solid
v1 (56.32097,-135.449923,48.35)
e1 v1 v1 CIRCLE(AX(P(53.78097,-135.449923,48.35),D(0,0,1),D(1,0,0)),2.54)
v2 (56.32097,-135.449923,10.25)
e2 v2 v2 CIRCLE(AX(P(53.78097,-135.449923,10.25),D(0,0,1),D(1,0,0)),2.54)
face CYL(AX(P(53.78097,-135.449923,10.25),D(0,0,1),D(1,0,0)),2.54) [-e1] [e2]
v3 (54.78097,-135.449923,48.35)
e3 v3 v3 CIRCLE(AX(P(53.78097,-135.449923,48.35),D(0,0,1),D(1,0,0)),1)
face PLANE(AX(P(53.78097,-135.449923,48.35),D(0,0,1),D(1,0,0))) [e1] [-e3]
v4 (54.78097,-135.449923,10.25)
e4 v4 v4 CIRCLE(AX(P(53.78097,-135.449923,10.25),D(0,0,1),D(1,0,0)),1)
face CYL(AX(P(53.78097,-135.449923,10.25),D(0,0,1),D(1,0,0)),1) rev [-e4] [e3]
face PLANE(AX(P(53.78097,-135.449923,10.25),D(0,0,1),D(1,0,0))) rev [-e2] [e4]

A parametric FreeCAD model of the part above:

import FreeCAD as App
import Part
import Sketcher
Q = App.Units.Quantity

doc = App.newDocument("Part")
body = doc.addObject("PartDesign::Body", "Body")

# Sketch on XY plane
sketch1 = doc.addObject("Sketcher::SketchObject", "Sketch")
body.addObject(sketch1)
sketch1.AttachmentSupport = (doc.XY_Plane, [""])
sketch1.MapMode = "FlatFace"
sketch1.AttachmentOffset = App.Placement(App.Vector(0, 0, 48.35), App.Rotation())
sketch1.addGeometry([
    Part.Circle(App.Vector(53.8, -135.4, 0), App.Vector(0, 0, 1), 2.5),
    Part.Circle(App.Vector(53.8, -135.4, 0), App.Vector(0, 0, 1), 1),
], False)
sketch1.addConstraint([
    Sketcher.Constraint("Coincident", 1, 3, 0, 3),
    Sketcher.Constraint("Diameter", 0, Q("0.2 in")),
    Sketcher.Constraint("Diameter", 1, Q("2 mm")),
    Sketcher.Constraint("DistanceX", -1, 1, 0, 3, Q("53.78097 mm")),
    Sketcher.Constraint("DistanceY", 0, 3, -1, 1, Q("135.449923 mm")),
])
pad1 = doc.addObject("PartDesign::Pad", "Pad")
body.addObject(pad1)
pad1.Profile = sketch1
pad1.Length = Q("1.5 in")
pad1.Reversed = True

doc.recompute()
